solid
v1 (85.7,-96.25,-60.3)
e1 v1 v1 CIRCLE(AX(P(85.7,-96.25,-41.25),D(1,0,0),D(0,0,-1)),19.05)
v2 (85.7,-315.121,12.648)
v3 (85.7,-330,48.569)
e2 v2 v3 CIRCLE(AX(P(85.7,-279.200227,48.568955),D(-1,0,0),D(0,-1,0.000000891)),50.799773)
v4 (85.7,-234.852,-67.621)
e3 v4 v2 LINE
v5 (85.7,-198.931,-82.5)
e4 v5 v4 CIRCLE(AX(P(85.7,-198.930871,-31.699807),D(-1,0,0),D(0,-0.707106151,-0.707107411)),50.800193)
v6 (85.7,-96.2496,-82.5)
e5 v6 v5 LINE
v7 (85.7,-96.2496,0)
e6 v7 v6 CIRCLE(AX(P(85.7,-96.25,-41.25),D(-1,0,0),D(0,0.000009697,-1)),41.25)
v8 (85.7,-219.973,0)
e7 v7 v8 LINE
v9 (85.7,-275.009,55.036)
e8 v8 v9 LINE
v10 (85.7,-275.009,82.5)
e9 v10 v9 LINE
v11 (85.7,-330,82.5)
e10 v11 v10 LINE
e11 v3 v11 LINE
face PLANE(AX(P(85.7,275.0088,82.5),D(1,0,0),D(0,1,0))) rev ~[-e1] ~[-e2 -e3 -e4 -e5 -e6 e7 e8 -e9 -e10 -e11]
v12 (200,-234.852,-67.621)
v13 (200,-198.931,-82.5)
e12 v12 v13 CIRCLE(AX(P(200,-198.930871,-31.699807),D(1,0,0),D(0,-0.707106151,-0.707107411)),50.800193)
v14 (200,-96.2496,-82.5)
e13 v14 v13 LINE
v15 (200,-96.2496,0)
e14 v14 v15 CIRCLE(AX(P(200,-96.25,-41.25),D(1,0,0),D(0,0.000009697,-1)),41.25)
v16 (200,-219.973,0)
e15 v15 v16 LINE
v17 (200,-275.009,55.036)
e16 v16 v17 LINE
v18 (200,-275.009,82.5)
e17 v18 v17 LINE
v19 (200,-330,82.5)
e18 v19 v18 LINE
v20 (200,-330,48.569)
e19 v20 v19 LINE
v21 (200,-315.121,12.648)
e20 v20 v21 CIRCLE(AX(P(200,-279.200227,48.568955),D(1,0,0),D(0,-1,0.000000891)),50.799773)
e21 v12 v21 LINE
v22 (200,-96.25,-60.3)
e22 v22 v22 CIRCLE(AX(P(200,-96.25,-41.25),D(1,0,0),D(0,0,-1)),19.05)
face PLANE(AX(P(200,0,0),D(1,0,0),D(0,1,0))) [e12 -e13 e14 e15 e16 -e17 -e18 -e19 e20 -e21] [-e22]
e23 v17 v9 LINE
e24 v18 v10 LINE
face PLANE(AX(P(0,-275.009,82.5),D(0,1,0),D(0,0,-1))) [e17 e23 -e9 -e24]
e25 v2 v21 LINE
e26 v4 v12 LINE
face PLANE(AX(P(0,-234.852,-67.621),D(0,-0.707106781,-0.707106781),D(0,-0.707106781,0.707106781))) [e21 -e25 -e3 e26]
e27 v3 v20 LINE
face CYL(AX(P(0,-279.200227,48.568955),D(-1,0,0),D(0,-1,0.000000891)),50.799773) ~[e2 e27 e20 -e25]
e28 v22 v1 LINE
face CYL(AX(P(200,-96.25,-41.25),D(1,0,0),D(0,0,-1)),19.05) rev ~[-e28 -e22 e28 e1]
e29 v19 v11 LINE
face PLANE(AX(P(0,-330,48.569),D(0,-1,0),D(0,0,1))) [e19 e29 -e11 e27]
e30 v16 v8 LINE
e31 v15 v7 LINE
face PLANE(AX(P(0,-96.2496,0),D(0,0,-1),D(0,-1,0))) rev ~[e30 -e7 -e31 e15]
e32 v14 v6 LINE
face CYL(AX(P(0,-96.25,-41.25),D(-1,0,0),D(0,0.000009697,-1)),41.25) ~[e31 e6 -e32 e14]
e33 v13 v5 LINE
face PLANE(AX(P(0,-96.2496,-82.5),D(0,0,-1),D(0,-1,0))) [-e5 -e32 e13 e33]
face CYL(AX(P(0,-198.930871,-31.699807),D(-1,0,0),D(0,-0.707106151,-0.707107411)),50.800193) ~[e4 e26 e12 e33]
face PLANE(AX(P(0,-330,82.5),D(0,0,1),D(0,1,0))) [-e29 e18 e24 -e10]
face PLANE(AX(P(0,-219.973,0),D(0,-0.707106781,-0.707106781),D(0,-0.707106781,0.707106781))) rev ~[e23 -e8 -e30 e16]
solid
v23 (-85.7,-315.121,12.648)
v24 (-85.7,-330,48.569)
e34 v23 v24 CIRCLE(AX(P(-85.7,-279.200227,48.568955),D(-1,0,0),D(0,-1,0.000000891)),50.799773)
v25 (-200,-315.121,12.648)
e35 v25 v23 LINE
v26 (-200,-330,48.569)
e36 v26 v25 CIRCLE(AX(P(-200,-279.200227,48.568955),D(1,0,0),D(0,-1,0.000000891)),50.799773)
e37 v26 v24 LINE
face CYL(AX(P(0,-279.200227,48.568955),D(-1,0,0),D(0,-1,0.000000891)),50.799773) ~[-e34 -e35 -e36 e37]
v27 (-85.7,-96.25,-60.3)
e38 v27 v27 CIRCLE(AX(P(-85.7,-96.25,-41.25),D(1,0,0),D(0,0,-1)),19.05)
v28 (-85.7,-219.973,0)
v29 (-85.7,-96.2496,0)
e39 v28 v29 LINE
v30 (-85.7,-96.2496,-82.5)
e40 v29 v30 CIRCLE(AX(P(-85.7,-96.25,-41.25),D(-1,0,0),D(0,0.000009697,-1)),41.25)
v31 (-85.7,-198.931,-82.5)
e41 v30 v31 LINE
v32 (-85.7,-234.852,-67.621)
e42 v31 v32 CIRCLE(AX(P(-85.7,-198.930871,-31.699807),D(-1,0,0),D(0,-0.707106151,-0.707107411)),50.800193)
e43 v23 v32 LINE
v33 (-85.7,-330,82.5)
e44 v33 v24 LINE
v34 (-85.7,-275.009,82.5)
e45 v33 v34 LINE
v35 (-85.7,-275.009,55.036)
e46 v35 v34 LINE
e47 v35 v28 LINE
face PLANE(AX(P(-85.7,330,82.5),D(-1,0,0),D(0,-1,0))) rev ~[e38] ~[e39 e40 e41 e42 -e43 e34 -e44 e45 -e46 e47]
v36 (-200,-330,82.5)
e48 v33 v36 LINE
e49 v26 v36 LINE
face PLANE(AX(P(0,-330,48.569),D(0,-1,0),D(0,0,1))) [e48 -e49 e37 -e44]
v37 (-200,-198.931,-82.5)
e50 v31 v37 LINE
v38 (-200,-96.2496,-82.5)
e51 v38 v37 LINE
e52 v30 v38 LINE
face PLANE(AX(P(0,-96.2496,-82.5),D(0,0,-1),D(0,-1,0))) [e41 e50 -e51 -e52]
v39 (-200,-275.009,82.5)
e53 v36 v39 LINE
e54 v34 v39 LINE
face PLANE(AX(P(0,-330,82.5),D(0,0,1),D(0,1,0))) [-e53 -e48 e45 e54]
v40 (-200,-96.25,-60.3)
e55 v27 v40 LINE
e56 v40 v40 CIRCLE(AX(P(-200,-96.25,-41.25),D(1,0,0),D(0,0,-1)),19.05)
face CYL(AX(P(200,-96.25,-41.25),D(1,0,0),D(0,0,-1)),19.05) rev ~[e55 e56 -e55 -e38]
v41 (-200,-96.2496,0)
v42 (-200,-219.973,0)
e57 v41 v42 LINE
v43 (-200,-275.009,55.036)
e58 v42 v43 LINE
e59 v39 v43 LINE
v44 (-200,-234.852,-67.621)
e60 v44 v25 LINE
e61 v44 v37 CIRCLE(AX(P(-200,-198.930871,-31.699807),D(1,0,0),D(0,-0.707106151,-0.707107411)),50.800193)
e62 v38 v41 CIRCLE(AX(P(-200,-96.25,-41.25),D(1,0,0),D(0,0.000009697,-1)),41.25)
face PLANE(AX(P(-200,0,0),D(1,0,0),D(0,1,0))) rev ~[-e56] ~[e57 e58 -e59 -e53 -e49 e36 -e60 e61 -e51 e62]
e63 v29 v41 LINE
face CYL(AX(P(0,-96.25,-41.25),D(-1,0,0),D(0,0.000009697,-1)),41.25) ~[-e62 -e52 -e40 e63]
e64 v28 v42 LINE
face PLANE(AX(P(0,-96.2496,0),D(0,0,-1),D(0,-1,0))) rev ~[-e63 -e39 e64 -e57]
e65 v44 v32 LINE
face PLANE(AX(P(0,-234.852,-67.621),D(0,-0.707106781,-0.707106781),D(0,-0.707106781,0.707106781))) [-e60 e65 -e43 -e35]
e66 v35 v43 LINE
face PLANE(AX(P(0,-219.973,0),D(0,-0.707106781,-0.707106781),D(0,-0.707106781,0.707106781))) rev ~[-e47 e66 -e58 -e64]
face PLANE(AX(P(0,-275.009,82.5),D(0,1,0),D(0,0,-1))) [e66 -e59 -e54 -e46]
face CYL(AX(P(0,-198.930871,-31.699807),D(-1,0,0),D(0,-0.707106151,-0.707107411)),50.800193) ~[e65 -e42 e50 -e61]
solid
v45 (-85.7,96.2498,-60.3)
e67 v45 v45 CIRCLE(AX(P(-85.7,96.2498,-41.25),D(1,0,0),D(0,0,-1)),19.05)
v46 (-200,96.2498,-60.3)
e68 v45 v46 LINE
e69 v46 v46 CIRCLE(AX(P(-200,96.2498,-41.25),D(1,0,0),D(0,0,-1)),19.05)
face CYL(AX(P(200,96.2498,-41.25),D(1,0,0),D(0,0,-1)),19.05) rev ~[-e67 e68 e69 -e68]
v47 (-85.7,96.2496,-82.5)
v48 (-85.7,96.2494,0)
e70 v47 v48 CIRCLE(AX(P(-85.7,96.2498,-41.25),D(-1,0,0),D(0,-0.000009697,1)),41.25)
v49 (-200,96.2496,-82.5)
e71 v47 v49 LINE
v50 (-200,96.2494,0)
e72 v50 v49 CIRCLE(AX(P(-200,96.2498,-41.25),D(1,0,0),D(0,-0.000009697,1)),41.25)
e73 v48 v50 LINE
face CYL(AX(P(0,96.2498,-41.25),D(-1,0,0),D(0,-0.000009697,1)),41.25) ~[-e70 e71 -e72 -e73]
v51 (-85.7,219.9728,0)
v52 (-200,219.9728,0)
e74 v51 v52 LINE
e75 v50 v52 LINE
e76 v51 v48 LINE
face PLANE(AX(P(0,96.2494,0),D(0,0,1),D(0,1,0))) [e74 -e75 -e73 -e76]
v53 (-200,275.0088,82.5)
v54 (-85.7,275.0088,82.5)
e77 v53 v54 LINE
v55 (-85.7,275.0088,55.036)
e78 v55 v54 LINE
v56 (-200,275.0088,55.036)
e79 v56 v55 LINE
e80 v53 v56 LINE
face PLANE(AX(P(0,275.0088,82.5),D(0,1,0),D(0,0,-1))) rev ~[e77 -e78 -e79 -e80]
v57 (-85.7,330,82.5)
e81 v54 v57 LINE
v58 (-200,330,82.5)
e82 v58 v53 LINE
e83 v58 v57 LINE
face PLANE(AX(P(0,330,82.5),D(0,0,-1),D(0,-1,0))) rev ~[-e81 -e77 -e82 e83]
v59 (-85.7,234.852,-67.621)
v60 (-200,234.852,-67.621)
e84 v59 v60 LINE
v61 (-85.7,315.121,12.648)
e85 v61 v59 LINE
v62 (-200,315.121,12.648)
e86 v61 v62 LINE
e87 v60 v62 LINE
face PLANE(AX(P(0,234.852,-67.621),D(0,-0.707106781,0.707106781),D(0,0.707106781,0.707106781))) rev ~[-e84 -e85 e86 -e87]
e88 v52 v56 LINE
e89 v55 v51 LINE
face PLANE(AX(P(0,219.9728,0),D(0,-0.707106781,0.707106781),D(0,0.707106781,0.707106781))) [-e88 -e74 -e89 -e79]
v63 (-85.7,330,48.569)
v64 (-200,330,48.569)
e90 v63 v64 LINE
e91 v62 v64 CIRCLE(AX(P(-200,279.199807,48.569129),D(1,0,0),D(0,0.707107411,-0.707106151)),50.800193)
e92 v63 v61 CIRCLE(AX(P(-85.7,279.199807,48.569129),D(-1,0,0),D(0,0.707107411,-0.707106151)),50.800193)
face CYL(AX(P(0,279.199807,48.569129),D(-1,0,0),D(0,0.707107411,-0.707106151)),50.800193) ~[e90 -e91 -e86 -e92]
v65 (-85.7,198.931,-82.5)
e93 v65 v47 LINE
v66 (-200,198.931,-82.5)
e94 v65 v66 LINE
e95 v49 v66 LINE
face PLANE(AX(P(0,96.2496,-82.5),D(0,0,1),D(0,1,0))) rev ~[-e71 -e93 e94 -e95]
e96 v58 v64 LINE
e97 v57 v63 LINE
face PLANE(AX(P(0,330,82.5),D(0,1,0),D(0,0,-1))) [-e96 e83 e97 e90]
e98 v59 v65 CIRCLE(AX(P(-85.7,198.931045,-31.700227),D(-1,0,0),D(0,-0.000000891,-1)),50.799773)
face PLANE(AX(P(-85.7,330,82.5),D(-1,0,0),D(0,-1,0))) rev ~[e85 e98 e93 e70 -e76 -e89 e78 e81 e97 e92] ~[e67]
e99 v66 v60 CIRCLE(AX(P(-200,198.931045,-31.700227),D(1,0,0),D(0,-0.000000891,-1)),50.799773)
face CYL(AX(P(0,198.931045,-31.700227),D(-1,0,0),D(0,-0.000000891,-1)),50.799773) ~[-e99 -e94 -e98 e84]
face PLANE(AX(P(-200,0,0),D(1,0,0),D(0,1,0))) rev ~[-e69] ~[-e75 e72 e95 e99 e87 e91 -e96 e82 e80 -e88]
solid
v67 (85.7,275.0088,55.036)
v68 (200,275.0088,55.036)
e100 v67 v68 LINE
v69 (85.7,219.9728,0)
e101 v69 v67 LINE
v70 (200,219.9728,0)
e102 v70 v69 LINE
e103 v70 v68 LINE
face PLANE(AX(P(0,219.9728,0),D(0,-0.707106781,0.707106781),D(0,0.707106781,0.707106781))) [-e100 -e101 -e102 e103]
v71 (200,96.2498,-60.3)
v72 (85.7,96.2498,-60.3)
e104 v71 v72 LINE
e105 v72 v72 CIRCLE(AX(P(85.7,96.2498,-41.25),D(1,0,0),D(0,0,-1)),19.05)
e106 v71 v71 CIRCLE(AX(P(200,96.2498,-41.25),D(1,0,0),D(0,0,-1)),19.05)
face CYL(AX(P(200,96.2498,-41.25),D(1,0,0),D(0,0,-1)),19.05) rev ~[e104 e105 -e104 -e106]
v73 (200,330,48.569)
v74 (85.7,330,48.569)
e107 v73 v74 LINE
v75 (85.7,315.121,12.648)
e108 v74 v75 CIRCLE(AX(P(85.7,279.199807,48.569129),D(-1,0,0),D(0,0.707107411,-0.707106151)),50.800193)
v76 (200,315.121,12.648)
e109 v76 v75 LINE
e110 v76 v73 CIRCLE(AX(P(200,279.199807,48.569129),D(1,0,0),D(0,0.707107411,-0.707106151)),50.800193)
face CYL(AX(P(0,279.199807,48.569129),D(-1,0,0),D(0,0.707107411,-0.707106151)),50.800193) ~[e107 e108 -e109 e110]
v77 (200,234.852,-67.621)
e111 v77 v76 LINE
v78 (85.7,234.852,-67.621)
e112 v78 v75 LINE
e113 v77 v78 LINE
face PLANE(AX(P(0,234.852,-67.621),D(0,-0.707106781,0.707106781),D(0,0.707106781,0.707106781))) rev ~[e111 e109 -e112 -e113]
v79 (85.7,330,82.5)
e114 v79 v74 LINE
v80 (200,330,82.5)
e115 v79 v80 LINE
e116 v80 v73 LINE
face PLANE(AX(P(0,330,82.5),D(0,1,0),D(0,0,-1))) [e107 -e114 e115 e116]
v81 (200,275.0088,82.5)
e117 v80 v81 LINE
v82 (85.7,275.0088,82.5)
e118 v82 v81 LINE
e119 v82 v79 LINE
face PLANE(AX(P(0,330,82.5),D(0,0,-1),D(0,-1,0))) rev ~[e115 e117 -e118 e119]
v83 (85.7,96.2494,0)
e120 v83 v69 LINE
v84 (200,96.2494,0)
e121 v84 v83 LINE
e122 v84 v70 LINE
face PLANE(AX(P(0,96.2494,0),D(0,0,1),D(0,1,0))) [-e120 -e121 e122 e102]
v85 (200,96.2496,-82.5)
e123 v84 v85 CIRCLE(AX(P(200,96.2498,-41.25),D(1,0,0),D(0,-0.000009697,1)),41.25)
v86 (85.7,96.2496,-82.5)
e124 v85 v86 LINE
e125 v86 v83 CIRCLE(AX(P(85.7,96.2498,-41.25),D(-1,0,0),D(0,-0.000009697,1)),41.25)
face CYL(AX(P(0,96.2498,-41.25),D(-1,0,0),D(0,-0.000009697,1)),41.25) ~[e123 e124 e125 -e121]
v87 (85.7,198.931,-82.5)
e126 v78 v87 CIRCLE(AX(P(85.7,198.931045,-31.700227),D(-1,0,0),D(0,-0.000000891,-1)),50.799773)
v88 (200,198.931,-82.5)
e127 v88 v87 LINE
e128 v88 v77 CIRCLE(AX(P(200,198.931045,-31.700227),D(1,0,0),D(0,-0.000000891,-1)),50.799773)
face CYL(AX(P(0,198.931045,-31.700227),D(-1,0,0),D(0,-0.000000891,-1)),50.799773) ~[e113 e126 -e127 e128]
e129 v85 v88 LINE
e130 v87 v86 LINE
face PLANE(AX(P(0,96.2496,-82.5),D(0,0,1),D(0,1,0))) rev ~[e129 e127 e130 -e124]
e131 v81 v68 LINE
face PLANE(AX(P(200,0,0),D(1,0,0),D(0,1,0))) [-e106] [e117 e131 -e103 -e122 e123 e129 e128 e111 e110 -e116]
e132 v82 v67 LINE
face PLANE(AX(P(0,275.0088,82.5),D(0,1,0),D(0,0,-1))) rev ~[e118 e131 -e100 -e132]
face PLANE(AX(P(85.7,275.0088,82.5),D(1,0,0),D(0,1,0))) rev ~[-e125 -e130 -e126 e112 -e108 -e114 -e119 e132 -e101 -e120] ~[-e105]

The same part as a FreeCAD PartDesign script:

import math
import FreeCAD as App
import Part
import Sketcher
from FreeCAD import Vector
Q = App.Units.Quantity

doc = App.newDocument("Part")
body = doc.addObject("PartDesign::Body", "Body")
body.AllowCompound = True

sketch1 = body.newObject("Sketcher::SketchObject", "Sketch")
sketch1.AttachmentSupport = (doc.getObject("YZ_Plane"), [""])
sketch1.MapMode = "FlatFace"
sketch1.addGeometry([
    Part.LineSegment(Vector(330, 48.569, 0), Vector(330, 82.5, 0)),
    Part.LineSegment(Vector(330, 82.5, 0), Vector(275.0088, 82.5, 0)),
    Part.LineSegment(Vector(275.0088, 82.5, 0), Vector(275.0088, 55.036, 0)),
    Part.LineSegment(Vector(275.0088, 55.036, 0), Vector(219.9728, 0, 0)),
    Part.LineSegment(Vector(219.9728, 0, 0), Vector(96.2494, 0, 0)),
    Part.ArcOfCircle(Part.Circle(Vector(96.2498, -41.25, 0), Vector(0, 0, 1), 41.25), math.radians(90.000556), math.radians(269.999722)),
    Part.LineSegment(Vector(96.2496, -82.5, 0), Vector(198.931, -82.5, 0)),
    Part.ArcOfCircle(Part.Circle(Vector(198.931, -31.7, 0), Vector(0, 0, 1), 50.8), math.radians(-90), math.radians(-45)),
    Part.LineSegment(Vector(234.852, -67.621, 0), Vector(315.121, 12.648, 0)),
    Part.ArcOfCircle(Part.Circle(Vector(279.2, 48.569, 0), Vector(0, 0, 1), 50.799965), math.radians(-45), math.radians(0)),
    Part.LineSegment(Vector(-330, 82.5, 0), Vector(-330, 48.569, 0)),
    Part.ArcOfCircle(Part.Circle(Vector(-279.2, 48.569, 0), Vector(0, 0, 1), 50.8), math.radians(180), math.radians(225)),
    Part.LineSegment(Vector(-315.121, 12.648, 0), Vector(-234.852, -67.621, 0)),
    Part.ArcOfCircle(Part.Circle(Vector(-198.931, -31.7, 0), Vector(0, 0, 1), 50.799965), math.radians(-135), math.radians(-90)),
    Part.LineSegment(Vector(-198.931, -82.5, 0), Vector(-96.2496, -82.5, 0)),
    Part.ArcOfCircle(Part.Circle(Vector(-96.25, -41.25, 0), Vector(0, 0, 1), 41.25), math.radians(-89.999444), math.radians(89.999444)),
    Part.LineSegment(Vector(-96.2496, 0, 0), Vector(-219.973, 0, 0)),
    Part.LineSegment(Vector(-219.973, 0, 0), Vector(-275.009, 55.036, 0)),
    Part.LineSegment(Vector(-275.009, 55.036, 0), Vector(-275.009, 82.5, 0)),
    Part.LineSegment(Vector(-275.009, 82.5, 0), Vector(-330, 82.5, 0)),
], False)
sketch1.addConstraint([
    Sketcher.Constraint("Coincident", 0, 2, 1, 1),
    Sketcher.Constraint("Coincident", 1, 2, 2, 1),
    Sketcher.Constraint("Coincident", 2, 2, 3, 1),
    Sketcher.Constraint("Coincident", 3, 2, 4, 1),
    Sketcher.Constraint("Tangent", 4, 2, 5, 1),
    Sketcher.Constraint("Tangent", 5, 2, 6, 1),
    Sketcher.Constraint("Tangent", 6, 2, 7, 1),
    Sketcher.Constraint("Tangent", 7, 2, 8, 1),
    Sketcher.Constraint("Tangent", 8, 2, 9, 1),
    Sketcher.Constraint("Tangent", 9, 2, 0, 1),
    Sketcher.Constraint("Tangent", 10, 2, 11, 1),
    Sketcher.Constraint("Tangent", 11, 2, 12, 1),
    Sketcher.Constraint("Tangent", 12, 2, 13, 1),
    Sketcher.Constraint("Tangent", 13, 2, 14, 1),
    Sketcher.Constraint("Tangent", 14, 2, 15, 1),
    Sketcher.Constraint("Tangent", 15, 2, 16, 1),
    Sketcher.Constraint("Coincident", 16, 2, 17, 1),
    Sketcher.Constraint("Coincident", 17, 2, 18, 1),
    Sketcher.Constraint("Coincident", 18, 2, 19, 1),
    Sketcher.Constraint("Coincident", 19, 2, 10, 1),
    Sketcher.Constraint("Vertical", 0),
    Sketcher.Constraint("Horizontal", 1),
    Sketcher.Constraint("Vertical", 2),
    Sketcher.Constraint("Horizontal", 4),
    Sketcher.Constraint("Horizontal", 6),
    Sketcher.Constraint("Vertical", 10),
    Sketcher.Constraint("Horizontal", 14),
    Sketcher.Constraint("Horizontal", 16),
    Sketcher.Constraint("Vertical", 18),
    Sketcher.Constraint("Horizontal", 19),
    Sketcher.Constraint("Equal", 7, 9),
    Sketcher.Constraint("Equal", 9, 11),
    Sketcher.Constraint("Equal", 11, 13),
    Sketcher.Constraint("Equal", 5, 15),
    Sketcher.Constraint("Symmetric", 4, 2, 15, 2, -1, 1),
    Sketcher.Constraint("Symmetric", 9, 3, 11, 3, -2),
    Sketcher.Constraint("Symmetric", 7, 3, 13, 3, -2),
    Sketcher.Constraint("Symmetric", 2, 2, 17, 2, -2),
    Sketcher.Constraint("Parallel", 3, 8),
    Sketcher.Constraint("Perpendicular", 8, 12),
    Sketcher.Constraint("Parallel", 12, 17),
    Sketcher.Constraint("Horizontal", 1, 2, 18, 2),
    Sketcher.Constraint("Radius", 7, Q("2 in")),
    Sketcher.Constraint("DistanceX", 1, 2, 1, 1, Q("2.165 in")),
    Sketcher.Constraint("DistanceX", 4, 2, 4, 1, Q("4.871 in")),
    Sketcher.Constraint("Radius", 5, 41.25),
    Sketcher.Constraint("DistanceX", 3, 2, 8, 2, Q("3.746 in")),
    Sketcher.Constraint("Distance", 8, Q("4.4692 in")),
    Sketcher.Constraint("DistanceY", 0, 1, 0, 2, 33.931),
    Sketcher.Constraint("DistanceX", 11, 3, 5, 3, Q("14.7815 in")),
])
pad1 = body.newObject("PartDesign::Pad", "Pad")
pad1.Profile = sketch1
pad1.Length = 400
pad1.Midplane = True

sketch2 = body.newObject("Sketcher::SketchObject", "Sketch001")
sketch2.AttachmentSupport = (doc.getObject("XY_Plane"), [""])
sketch2.MapMode = "FlatFace"
sketch2.AttachmentOffset = App.Placement(Vector(0, 0, 82.5), App.Rotation())
sketch2.addGeometry([
    Part.LineSegment(Vector(-85.7, 330, 0), Vector(-85.7, -330.6246, 0)),
    Part.LineSegment(Vector(-85.7, -330.6246, 0), Vector(85.7, -330.6246, 0)),
    Part.LineSegment(Vector(85.7, -330.6246, 0), Vector(85.7, 330, 0)),
    Part.LineSegment(Vector(85.7, 330, 0), Vector(-85.7, 330, 0)),
], False)
sketch2.addConstraint([
    Sketcher.Constraint("Coincident", 0, 2, 1, 1),
    Sketcher.Constraint("Coincident", 1, 2, 2, 1),
    Sketcher.Constraint("Coincident", 2, 2, 3, 1),
    Sketcher.Constraint("Coincident", 3, 2, 0, 1),
    Sketcher.Constraint("Vertical", 0),
    Sketcher.Constraint("Horizontal", 1),
    Sketcher.Constraint("Vertical", 2),
    Sketcher.Constraint("Horizontal", 3),
    Sketcher.Constraint("DistanceX", 1, 1, 1, 2, 171.4),
    Sketcher.Constraint("DistanceY", 0, 2, 0, 1, 660.6246),
    Sketcher.Constraint("DistanceX", 0, 2, -1, 1, 85.7),
    Sketcher.Constraint("DistanceY", 0, 2, -1, 1, 330.6246),
])
pocket1 = body.newObject("PartDesign::Pocket", "Pocket")
pocket1.Profile = sketch2
pocket1.Length = 165

sketch3 = body.newObject("Sketcher::SketchObject", "Sketch002")
sketch3.AttachmentSupport = (doc.getObject("YZ_Plane"), [""])
sketch3.MapMode = "FlatFace"
sketch3.AttachmentOffset = App.Placement(Vector(0, 0, 200), App.Rotation())
sketch3.addGeometry(Part.Circle(Vector(96.2498, -41.25, 0), Vector(0, 0, 1), 19.05), False)
sketch3.addConstraint([
    Sketcher.Constraint("Diameter", 0, Q("1.5 in")),
    Sketcher.Constraint("DistanceX", -1, 1, 0, 3, 96.2498),
    Sketcher.Constraint("DistanceY", 0, 3, -1, 1, 41.25),
])
pocket2 = body.newObject("PartDesign::Pocket", "Pocket001")
pocket2.Profile = sketch3
pocket2.Length = Q("15.75 in")

sketch4 = body.newObject("Sketcher::SketchObject", "Sketch003")
sketch4.AttachmentSupport = (doc.getObject("YZ_Plane"), [""])
sketch4.MapMode = "FlatFace"
sketch4.AttachmentOffset = App.Placement(Vector(0, 0, 200), App.Rotation())
sketch4.addGeometry(Part.Circle(Vector(-96.25, -41.25, 0), Vector(0, 0, 1), 19.05), False)
sketch4.addConstraint([
    Sketcher.Constraint("Diameter", 0, Q("1.5 in")),
    Sketcher.Constraint("DistanceX", 0, 3, -1, 1, 96.25),
    Sketcher.Constraint("DistanceY", 0, 3, -1, 1, 41.25),
])
pocket3 = body.newObject("PartDesign::Pocket", "Pocket002")
pocket3.Profile = sketch4
pocket3.Length = Q("15.75 in")

doc.recompute()
